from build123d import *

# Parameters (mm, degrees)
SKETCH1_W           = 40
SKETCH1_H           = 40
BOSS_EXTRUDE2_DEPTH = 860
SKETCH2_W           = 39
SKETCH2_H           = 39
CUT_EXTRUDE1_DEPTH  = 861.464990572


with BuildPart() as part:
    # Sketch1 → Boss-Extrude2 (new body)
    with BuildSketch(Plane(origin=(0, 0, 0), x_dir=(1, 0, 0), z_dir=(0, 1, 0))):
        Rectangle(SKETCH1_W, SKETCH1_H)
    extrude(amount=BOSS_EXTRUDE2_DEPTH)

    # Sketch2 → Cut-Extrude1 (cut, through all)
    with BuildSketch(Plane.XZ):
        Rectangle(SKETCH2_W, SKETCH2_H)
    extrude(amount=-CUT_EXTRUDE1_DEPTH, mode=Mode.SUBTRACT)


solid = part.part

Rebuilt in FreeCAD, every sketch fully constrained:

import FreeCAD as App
import Part
import Sketcher
from FreeCAD import Vector
Q = App.Units.Quantity

doc = App.newDocument("Part")
params = doc.addObject("Spreadsheet::Sheet", "Params")
for row, (alias, value) in enumerate([
    ("sketch1_width", "40 mm"),
    ("pad1_length", "860 mm"),
    ("sketch2_width", "39 mm"),
], start=1):
    params.set(f"A{row}", alias)
    params.set(f"B{row}", "=" + value)
    params.setAlias(f"B{row}", alias)

body = doc.addObject("PartDesign::Body", "Body")

sketch1 = doc.addObject("Sketcher::SketchObject", "Sketch")
body.addObject(sketch1)
sketch1.AttachmentSupport = (doc.XZ_Plane, [""])
sketch1.MapMode = "FlatFace"
sketch1.addGeometry([
    Part.LineSegment(Vector(-20, -20, 0), Vector(-20, 20, 0)),
    Part.LineSegment(Vector(-20, 20, 0), Vector(20, 20, 0)),
    Part.LineSegment(Vector(20, 20, 0), Vector(20, -20, 0)),
    Part.LineSegment(Vector(20, -20, 0), Vector(-20, -20, 0)),
], False)
sketch1.addConstraint([
    Sketcher.Constraint("Coincident", 0, 2, 1, 1),
    Sketcher.Constraint("Coincident", 1, 2, 2, 1),
    Sketcher.Constraint("Coincident", 2, 2, 3, 1),
    Sketcher.Constraint("Coincident", 3, 2, 0, 1),
    Sketcher.Constraint("Vertical", 0),
    Sketcher.Constraint("Horizontal", 1),
    Sketcher.Constraint("Vertical", 2),
    Sketcher.Constraint("Horizontal", 3),
    Sketcher.Constraint("Symmetric", 0, 2, 2, 2, -1, 1),
    Sketcher.Constraint("Equal", 3, 0),
    Sketcher.Constraint("DistanceX", 1, 1, 1, 2, Q("40 mm")),
])
sketch1.setExpression("Constraints[10]", "Params.sketch1_width")
pad1 = doc.addObject("PartDesign::Pad", "Pad")
body.addObject(pad1)
pad1.Profile = sketch1
pad1.setExpression("Length", "Params.pad1_length")
pad1.Reversed = True

sketch2 = doc.addObject("Sketcher::SketchObject", "Sketch001")
body.addObject(sketch2)
sketch2.AttachmentSupport = (doc.XZ_Plane, [""])
sketch2.MapMode = "FlatFace"
sketch2.addGeometry([
    Part.LineSegment(Vector(-20, 20, 0), Vector(-20, -20, 0)),
    Part.LineSegment(Vector(-20, -20, 0), Vector(20, -20, 0)),
    Part.LineSegment(Vector(20, -20, 0), Vector(20, 20, 0)),
    Part.LineSegment(Vector(20, 20, 0), Vector(-20, 20, 0)),
], False)
sketch2.addConstraint([
    Sketcher.Constraint("Coincident", 0, 2, 1, 1),
    Sketcher.Constraint("Coincident", 1, 2, 2, 1),
    Sketcher.Constraint("Coincident", 2, 2, 3, 1),
    Sketcher.Constraint("Coincident", 3, 2, 0, 1),
    Sketcher.Constraint("Vertical", 0),
    Sketcher.Constraint("Horizontal", 1),
    Sketcher.Constraint("Vertical", 2),
    Sketcher.Constraint("Horizontal", 3),
    Sketcher.Constraint("Symmetric", 0, 2, 2, 2, -1, 1),
    Sketcher.Constraint("Equal", 3, 0),
    Sketcher.Constraint("DistanceX", 1, 1, 1, 2, Q("39 mm")),
])
sketch2.setExpression("Constraints[10]", "Params.sketch2_width")
pocket1 = doc.addObject("PartDesign::Pocket", "Pocket")
body.addObject(pocket1)
pocket1.Profile = sketch2
pocket1.Type = "ThroughAll"

doc.recompute()
